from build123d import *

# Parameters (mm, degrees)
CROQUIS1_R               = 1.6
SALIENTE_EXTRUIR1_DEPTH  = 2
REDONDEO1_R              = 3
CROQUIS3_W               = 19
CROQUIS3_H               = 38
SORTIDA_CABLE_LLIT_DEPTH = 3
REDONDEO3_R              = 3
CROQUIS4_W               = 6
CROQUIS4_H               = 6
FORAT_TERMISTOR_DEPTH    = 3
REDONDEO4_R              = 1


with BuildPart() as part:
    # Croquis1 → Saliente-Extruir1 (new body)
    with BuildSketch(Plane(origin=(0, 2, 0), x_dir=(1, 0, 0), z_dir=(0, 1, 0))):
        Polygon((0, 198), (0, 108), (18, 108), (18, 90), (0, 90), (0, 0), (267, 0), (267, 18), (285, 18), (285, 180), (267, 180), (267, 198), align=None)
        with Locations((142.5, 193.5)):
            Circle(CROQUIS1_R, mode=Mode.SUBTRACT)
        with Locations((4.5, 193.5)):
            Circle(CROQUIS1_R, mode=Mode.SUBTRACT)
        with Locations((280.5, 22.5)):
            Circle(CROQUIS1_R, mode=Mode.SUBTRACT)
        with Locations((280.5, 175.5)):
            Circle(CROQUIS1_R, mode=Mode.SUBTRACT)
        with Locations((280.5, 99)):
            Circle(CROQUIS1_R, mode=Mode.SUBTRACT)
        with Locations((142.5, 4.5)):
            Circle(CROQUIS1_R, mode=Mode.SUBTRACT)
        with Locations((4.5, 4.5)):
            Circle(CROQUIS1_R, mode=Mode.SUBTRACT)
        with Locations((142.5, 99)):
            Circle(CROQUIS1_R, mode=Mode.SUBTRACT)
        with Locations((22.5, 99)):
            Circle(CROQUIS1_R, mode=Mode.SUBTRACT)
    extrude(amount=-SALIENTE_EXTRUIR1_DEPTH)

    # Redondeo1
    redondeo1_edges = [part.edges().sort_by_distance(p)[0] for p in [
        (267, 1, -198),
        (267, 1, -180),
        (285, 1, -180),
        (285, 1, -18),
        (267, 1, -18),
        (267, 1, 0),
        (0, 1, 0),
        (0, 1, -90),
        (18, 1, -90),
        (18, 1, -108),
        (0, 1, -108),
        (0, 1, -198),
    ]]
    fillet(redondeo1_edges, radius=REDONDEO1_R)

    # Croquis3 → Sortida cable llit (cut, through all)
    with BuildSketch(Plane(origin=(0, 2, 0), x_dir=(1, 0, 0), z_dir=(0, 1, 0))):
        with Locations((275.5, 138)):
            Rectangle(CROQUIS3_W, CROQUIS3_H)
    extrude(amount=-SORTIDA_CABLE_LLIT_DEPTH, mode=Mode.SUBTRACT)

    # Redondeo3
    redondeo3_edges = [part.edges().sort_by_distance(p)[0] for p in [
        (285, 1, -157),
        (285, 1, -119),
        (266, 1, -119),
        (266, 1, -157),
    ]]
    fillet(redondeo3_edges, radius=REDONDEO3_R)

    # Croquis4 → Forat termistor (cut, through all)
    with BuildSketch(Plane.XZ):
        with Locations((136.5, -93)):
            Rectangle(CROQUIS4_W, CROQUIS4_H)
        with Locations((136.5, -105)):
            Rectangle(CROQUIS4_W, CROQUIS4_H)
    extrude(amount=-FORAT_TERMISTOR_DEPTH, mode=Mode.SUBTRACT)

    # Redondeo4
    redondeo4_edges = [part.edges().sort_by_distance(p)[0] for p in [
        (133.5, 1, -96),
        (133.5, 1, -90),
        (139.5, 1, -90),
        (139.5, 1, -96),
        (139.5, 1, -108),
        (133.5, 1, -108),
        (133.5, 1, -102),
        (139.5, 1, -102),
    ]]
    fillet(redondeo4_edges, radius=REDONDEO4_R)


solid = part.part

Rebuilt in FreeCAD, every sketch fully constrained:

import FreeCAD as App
import Part
import Sketcher
from FreeCAD import Vector


def edges_at(feature, points):
    """Names of the edges that pass closest to the given points."""
    edges = feature.Shape.Edges
    near = lambda p: min(range(len(edges)), key=lambda i: edges[i].distToShape(Part.Vertex(*p))[0])
    return sorted({f"Edge{near(p) + 1}" for p in points})

doc = App.newDocument("Part")
body = doc.addObject("PartDesign::Body", "Body")

# Sketch on XZ plane
sketch1 = body.newObject("Sketcher::SketchObject", "Sketch")
sketch1.AttachmentSupport = (doc.getObject("XZ_Plane"), [""])
sketch1.MapMode = "FlatFace"
sketch1.AttachmentOffset = App.Placement(Vector(0, 0, -2), App.Rotation())
sketch1.addGeometry([
    Part.LineSegment(Vector(0, -198, 0), Vector(0, -108, 0)),  # 0
    Part.LineSegment(Vector(0, -108, 0), Vector(18, -108, 0)),  # 1
    Part.LineSegment(Vector(18, -108, 0), Vector(18, -90, 0)),  # 2
    Part.LineSegment(Vector(18, -90, 0), Vector(0, -90, 0)),  # 3
    Part.LineSegment(Vector(0, -90, 0), Vector(0, 0, 0)),  # 4
    Part.LineSegment(Vector(0, 0, 0), Vector(267, 0, 0)),  # 5
    Part.LineSegment(Vector(267, 0, 0), Vector(267, -18, 0)),  # 6
    Part.LineSegment(Vector(267, -18, 0), Vector(285, -18, 0)),  # 7
    Part.LineSegment(Vector(285, -18, 0), Vector(285, -180, 0)),  # 8
    Part.LineSegment(Vector(285, -180, 0), Vector(267, -180, 0)),  # 9
    Part.LineSegment(Vector(267, -180, 0), Vector(267, -198, 0)),  # 10
    Part.LineSegment(Vector(267, -198, 0), Vector(0, -198, 0)),  # 11
    Part.Circle(Vector(4.5, -4.5, 0), Vector(0, 0, 1), 1.6),  # 12
    Part.Circle(Vector(142.5, -4.5, 0), Vector(0, 0, 1), 1.6),  # 13
    Part.Circle(Vector(280.5, -22.5, 0), Vector(0, 0, 1), 1.6),  # 14
    Part.Circle(Vector(22.5, -99, 0), Vector(0, 0, 1), 1.6),  # 15
    Part.Circle(Vector(142.5, -99, 0), Vector(0, 0, 1), 1.6),  # 16
    Part.Circle(Vector(4.5, -193.5, 0), Vector(0, 0, 1), 1.6),  # 17
    Part.Circle(Vector(142.5, -193.5, 0), Vector(0, 0, 1), 1.6),  # 18
    Part.Circle(Vector(280.5, -99, 0), Vector(0, 0, 1), 1.6),  # 19
    Part.Circle(Vector(280.5, -175.5, 0), Vector(0, 0, 1), 1.6),  # 20
], False)
sketch1.addConstraint([
    Sketcher.Constraint("Coincident", 0, 2, 1, 1),
    Sketcher.Constraint("Coincident", 1, 2, 2, 1),
    Sketcher.Constraint("Coincident", 2, 2, 3, 1),
    Sketcher.Constraint("Coincident", 3, 2, 4, 1),
    Sketcher.Constraint("Coincident", 4, 2, 5, 1),
    Sketcher.Constraint("Coincident", 5, 2, 6, 1),
    Sketcher.Constraint("Coincident", 6, 2, 7, 1),
    Sketcher.Constraint("Coincident", 7, 2, 8, 1),
    Sketcher.Constraint("Coincident", 8, 2, 9, 1),
    Sketcher.Constraint("Coincident", 9, 2, 10, 1),
    Sketcher.Constraint("Coincident", 10, 2, 11, 1),
    Sketcher.Constraint("Coincident", 11, 2, 0, 1),
    Sketcher.Constraint("Vertical", 0),
    Sketcher.Constraint("Horizontal", 1),
    Sketcher.Constraint("Vertical", 2),
    Sketcher.Constraint("Horizontal", 3),
    Sketcher.Constraint("Vertical", 4),
    Sketcher.Constraint("Horizontal", 5),
    Sketcher.Constraint("Vertical", 6),
    Sketcher.Constraint("Horizontal", 7),
    Sketcher.Constraint("Vertical", 8),
    Sketcher.Constraint("Horizontal", 9),
    Sketcher.Constraint("Vertical", 10),
    Sketcher.Constraint("Horizontal", 11),
    Sketcher.Constraint("Coincident", 4, 2, -1, 1),
    Sketcher.Constraint("Equal", 12, 13),
    Sketcher.Constraint("Equal", 13, 14),
    Sketcher.Constraint("Equal", 14, 15),
    Sketcher.Constraint("Equal", 15, 16),
    Sketcher.Constraint("Equal", 16, 17),
    Sketcher.Constraint("Equal", 17, 18),
    Sketcher.Constraint("Equal", 18, 19),
    Sketcher.Constraint("Equal", 19, 20),
    Sketcher.Constraint("PointOnObject", 0, 2, -2),
    Sketcher.Constraint("Horizontal", 12, 3, 13, 3),
    Sketcher.Constraint("Horizontal", 15, 3, 16, 3),
    Sketcher.Constraint("Horizontal", 17, 3, 18, 3),
    Sketcher.Constraint("Horizontal", 16, 3, 19, 3),
    Sketcher.Constraint("Vertical", 13, 3, 16, 3),
    Sketcher.Constraint("Vertical", 12, 3, 17, 3),
    Sketcher.Constraint("Vertical", 16, 3, 18, 3),
    Sketcher.Constraint("Vertical", 14, 3, 19, 3),
    Sketcher.Constraint("Vertical", 19, 3, 20, 3),
    Sketcher.Constraint("Vertical", 6, 2, 9, 2),
    Sketcher.Constraint("Equal", 3, 7),
    Sketcher.Constraint("Equal", 9, 2),
    Sketcher.Constraint("Equal", 0, 4),
    Sketcher.Constraint("Equal", 2, 6),
    Sketcher.Constraint("Equal", 6, 10),
    Sketcher.Constraint("Diameter", 12, 3.2),
    Sketcher.Constraint("DistanceX", 1, 1, 1, 2, 18.0),
    Sketcher.Constraint("DistanceX", 5, 1, 5, 2, 267.0),
    Sketcher.Constraint("DistanceY", 0, 1, 0, 2, 90.0),
    Sketcher.Constraint("DistanceY", 15, 3, -1, 1, 99.0),
    Sketcher.Constraint("DistanceX", 12, 3, 13, 3, 138.0),
    Sketcher.Constraint("DistanceX", 13, 3, 14, 3, 138.0),
    Sketcher.Constraint("DistanceY", 14, 3, 13, 3, 18.0),
    Sketcher.Constraint("DistanceX", 12, 3, 15, 3, 18.0),
    Sketcher.Constraint("DistanceY", 17, 3, 12, 3, 189.0),
    Sketcher.Constraint("DistanceY", 18, 3, 20, 3, 18.0),
    Sketcher.Constraint("DistanceX", -1, 1, 12, 3, 4.5),
    Sketcher.Constraint("DistanceY", 12, 3, -1, 1, 4.5),
])
pad1 = body.newObject("PartDesign::Pad", "Pad")
pad1.Profile = sketch1
pad1.Length = 2
doc.recompute()

fillet = body.newObject("PartDesign::Fillet", "Fillet")
fillet.Base = (pad1, edges_at(pad1, [
    (267, 1, -198),
    (267, 1, -180),
    (285, 1, -180),
    (285, 1, -18),
    (267, 1, -18),
    (267, 1, 0),
    (0, 1, 0),
    (0, 1, -90),
    (18, 1, -90),
    (18, 1, -108),
    (0, 1, -108),
    (0, 1, -198),
]))
fillet.Radius = 3

# Sketch on XZ plane
sketch2 = body.newObject("Sketcher::SketchObject", "Sketch001")
sketch2.AttachmentSupport = (doc.getObject("XZ_Plane"), [""])
sketch2.MapMode = "FlatFace"
sketch2.AttachmentOffset = App.Placement(Vector(0, 0, -2), App.Rotation())
sketch2.addGeometry([
    Part.LineSegment(Vector(266, -157, 0), Vector(266, -119, 0)),
    Part.LineSegment(Vector(266, -119, 0), Vector(285, -119, 0)),
    Part.LineSegment(Vector(285, -119, 0), Vector(285, -157, 0)),
    Part.LineSegment(Vector(285, -157, 0), Vector(266, -157, 0)),
], False)
sketch2.addConstraint([
    Sketcher.Constraint("Coincident", 0, 2, 1, 1),
    Sketcher.Constraint("Coincident", 1, 2, 2, 1),
    Sketcher.Constraint("Coincident", 2, 2, 3, 1),
    Sketcher.Constraint("Coincident", 3, 2, 0, 1),
    Sketcher.Constraint("Vertical", 0),
    Sketcher.Constraint("Horizontal", 1),
    Sketcher.Constraint("Vertical", 2),
    Sketcher.Constraint("Horizontal", 3),
    Sketcher.Constraint("DistanceX", 1, 1, 1, 2, 19.0),
    Sketcher.Constraint("DistanceY", 0, 1, 0, 2, 38.0),
    Sketcher.Constraint("DistanceX", -1, 1, 0, 2, 266.0),
    Sketcher.Constraint("DistanceY", 0, 2, -1, 1, 119.0),
])
pocket1 = body.newObject("PartDesign::Pocket", "Pocket")
pocket1.Profile = sketch2
pocket1.Type = "ThroughAll"
pocket1.Reversed = True
doc.recompute()

fillet2 = body.newObject("PartDesign::Fillet", "Fillet001")
fillet2.Base = (pocket1, edges_at(pocket1, [
    (285, 1, -157),
    (285, 1, -119),
    (266, 1, -119),
    (266, 1, -157),
]))
fillet2.Radius = 3

# Sketch on XZ plane
sketch3 = body.newObject("Sketcher::SketchObject", "Sketch002")
sketch3.AttachmentSupport = (doc.getObject("XZ_Plane"), [""])
sketch3.MapMode = "FlatFace"
sketch3.addGeometry([
    Part.LineSegment(Vector(133.5, -90, 0), Vector(133.5, -96, 0)),  # 0
    Part.LineSegment(Vector(133.5, -96, 0), Vector(139.5, -96, 0)),  # 1
    Part.LineSegment(Vector(139.5, -96, 0), Vector(139.5, -90, 0)),  # 2
    Part.LineSegment(Vector(139.5, -90, 0), Vector(133.5, -90, 0)),  # 3
    Part.LineSegment(Vector(133.5, -102, 0), Vector(133.5, -108, 0)),  # 4
    Part.LineSegment(Vector(133.5, -108, 0), Vector(139.5, -108, 0)),  # 5
    Part.LineSegment(Vector(139.5, -108, 0), Vector(139.5, -102, 0)),  # 6
    Part.LineSegment(Vector(139.5, -102, 0), Vector(133.5, -102, 0)),  # 7
], False)
sketch3.addConstraint([
    Sketcher.Constraint("Coincident", 0, 2, 1, 1),
    Sketcher.Constraint("Coincident", 1, 2, 2, 1),
    Sketcher.Constraint("Coincident", 2, 2, 3, 1),
    Sketcher.Constraint("Coincident", 3, 2, 0, 1),
    Sketcher.Constraint("Coincident", 4, 2, 5, 1),
    Sketcher.Constraint("Coincident", 5, 2, 6, 1),
    Sketcher.Constraint("Coincident", 6, 2, 7, 1),
    Sketcher.Constraint("Coincident", 7, 2, 4, 1),
    Sketcher.Constraint("Vertical", 0),
    Sketcher.Constraint("Horizontal", 1),
    Sketcher.Constraint("Vertical", 2),
    Sketcher.Constraint("Horizontal", 3),
    Sketcher.Constraint("Vertical", 4),
    Sketcher.Constraint("Horizontal", 5),
    Sketcher.Constraint("Vertical", 6),
    Sketcher.Constraint("Horizontal", 7),
    Sketcher.Constraint("Vertical", 3, 2, 4, 2),
    Sketcher.Constraint("Vertical", 2, 2, 5, 2),
    Sketcher.Constraint("Equal", 7, 0),
    Sketcher.Constraint("Equal", 2, 4),
    Sketcher.Constraint("DistanceX", 1, 1, 1, 2, 6.0),
    Sketcher.Constraint("DistanceY", 0, 2, -1, 1, 96.0),
    Sketcher.Constraint("DistanceY", 4, 2, -1, 1, 108.0),
    Sketcher.Constraint("DistanceX", -1, 1, 0, 2, 133.5),
])
pocket2 = body.newObject("PartDesign::Pocket", "Pocket001")
pocket2.Profile = sketch3
pocket2.Type = "ThroughAll"
doc.recompute()

fillet3 = body.newObject("PartDesign::Fillet", "Fillet002")
fillet3.Base = (pocket2, edges_at(pocket2, [
    (133.5, 1, -96),
    (133.5, 1, -90),
    (139.5, 1, -90),
    (139.5, 1, -96),
    (139.5, 1, -108),
    (133.5, 1, -108),
    (133.5, 1, -102),
    (139.5, 1, -102),
]))
fillet3.Radius = 1

doc.recompute()
